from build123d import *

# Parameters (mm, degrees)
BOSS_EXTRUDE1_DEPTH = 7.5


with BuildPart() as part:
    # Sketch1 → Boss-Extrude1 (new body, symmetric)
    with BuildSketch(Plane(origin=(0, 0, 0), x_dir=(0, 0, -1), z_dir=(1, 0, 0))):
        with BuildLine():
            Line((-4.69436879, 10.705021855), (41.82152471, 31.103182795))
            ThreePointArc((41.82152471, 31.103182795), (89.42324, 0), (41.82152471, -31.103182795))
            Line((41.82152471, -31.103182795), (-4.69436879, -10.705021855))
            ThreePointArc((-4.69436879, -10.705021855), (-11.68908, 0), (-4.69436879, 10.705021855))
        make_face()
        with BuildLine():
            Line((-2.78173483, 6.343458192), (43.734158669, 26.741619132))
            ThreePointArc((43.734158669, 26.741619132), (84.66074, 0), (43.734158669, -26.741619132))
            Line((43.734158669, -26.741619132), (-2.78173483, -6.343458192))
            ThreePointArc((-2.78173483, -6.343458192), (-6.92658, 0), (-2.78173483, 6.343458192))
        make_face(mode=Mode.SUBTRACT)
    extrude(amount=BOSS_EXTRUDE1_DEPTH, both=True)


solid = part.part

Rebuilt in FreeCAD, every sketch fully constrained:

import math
import FreeCAD as App
import Part
import Sketcher
from FreeCAD import Vector

doc = App.newDocument("Part")
params = doc.addObject("Spreadsheet::Sheet", "Params")
for row, (alias, value) in enumerate([
    ("pad1_length", "15 mm"),
], start=1):
    params.set(f"A{row}", alias)
    params.set(f"B{row}", "=" + value)
    params.setAlias(f"B{row}", alias)

body = doc.addObject("PartDesign::Body", "Body")

# Sketch on YZ plane
sketch1 = body.newObject("Sketcher::SketchObject", "Sketch")
sketch1.AttachmentSupport = (doc.getObject("YZ_Plane"), [""])
sketch1.MapMode = "FlatFace"
sketch1.addGeometry(Part.LineSegment(Vector(31, -42, 0), Vector(11, 5, 0)), False)
sketch1.addGeometry(Part.ArcOfCircle(Part.Circle(Vector(0, 0, 0), Vector(0, 0, 1), 12), math.radians(24), math.radians(156)), False)
sketch1.addGeometry(Part.LineSegment(Vector(-11, 5, 0), Vector(-31, -42, 0)), False)
sketch1.addGeometry(Part.ArcOfCircle(Part.Circle(Vector(0, -55, 0), Vector(0, 0, 1), 34), math.radians(156), math.radians(384)), False)
sketch1.addGeometry(Part.LineSegment(Vector(6, 3, 0), Vector(27, -44, 0)), False)
sketch1.addGeometry(Part.ArcOfCircle(Part.Circle(Vector(0, -55, 0), Vector(0, 0, 1), 29), math.radians(156), math.radians(384)), False)
sketch1.addGeometry(Part.LineSegment(Vector(-27, -44, 0), Vector(-6, 3, 0)), False)
sketch1.addGeometry(Part.ArcOfCircle(Part.Circle(Vector(0, 0, 0), Vector(0, 0, 1), 7), math.radians(24), math.radians(156)), False)
sketch1.addConstraint(Sketcher.Constraint("Tangent", 0, 2, 1, 1))
sketch1.addConstraint(Sketcher.Constraint("Tangent", 1, 2, 2, 1))
sketch1.addConstraint(Sketcher.Constraint("Tangent", 2, 2, 3, 1))
sketch1.addConstraint(Sketcher.Constraint("Tangent", 3, 2, 0, 1))
sketch1.addConstraint(Sketcher.Constraint("Tangent", 4, 2, 5, 2))
sketch1.addConstraint(Sketcher.Constraint("Tangent", 5, 1, 6, 1))
sketch1.addConstraint(Sketcher.Constraint("Tangent", 6, 2, 7, 2))
sketch1.addConstraint(Sketcher.Constraint("Tangent", 7, 1, 4, 1))
sketch1.addConstraint(Sketcher.Constraint("Coincident", 1, 3, -1, 1))
sketch1.addConstraint(Sketcher.Constraint("Coincident", 7, 3, -1, 1))
sketch1.addConstraint(Sketcher.Constraint("Coincident", 5, 3, 3, 3))
sketch1.addConstraint(Sketcher.Constraint("PointOnObject", 3, 3, -2))
sketch1.addConstraint(Sketcher.Constraint("Parallel", 0, 4))
sketch1.addConstraint(Sketcher.Constraint("Radius", 1, 11.68908))
sketch1.addConstraint(Sketcher.Constraint("Radius", 3, 33.96234))
sketch1.addConstraint(Sketcher.Constraint("Radius", 5, 29.19984))
sketch1.addConstraint(Sketcher.Constraint("DistanceY", 3, 3, -1, 1, 55.4609))
pad1 = body.newObject("PartDesign::Pad", "Pad")
pad1.Profile = sketch1
pad1.setExpression("Length", "Params.pad1_length")
pad1.Midplane = True

doc.recompute()
